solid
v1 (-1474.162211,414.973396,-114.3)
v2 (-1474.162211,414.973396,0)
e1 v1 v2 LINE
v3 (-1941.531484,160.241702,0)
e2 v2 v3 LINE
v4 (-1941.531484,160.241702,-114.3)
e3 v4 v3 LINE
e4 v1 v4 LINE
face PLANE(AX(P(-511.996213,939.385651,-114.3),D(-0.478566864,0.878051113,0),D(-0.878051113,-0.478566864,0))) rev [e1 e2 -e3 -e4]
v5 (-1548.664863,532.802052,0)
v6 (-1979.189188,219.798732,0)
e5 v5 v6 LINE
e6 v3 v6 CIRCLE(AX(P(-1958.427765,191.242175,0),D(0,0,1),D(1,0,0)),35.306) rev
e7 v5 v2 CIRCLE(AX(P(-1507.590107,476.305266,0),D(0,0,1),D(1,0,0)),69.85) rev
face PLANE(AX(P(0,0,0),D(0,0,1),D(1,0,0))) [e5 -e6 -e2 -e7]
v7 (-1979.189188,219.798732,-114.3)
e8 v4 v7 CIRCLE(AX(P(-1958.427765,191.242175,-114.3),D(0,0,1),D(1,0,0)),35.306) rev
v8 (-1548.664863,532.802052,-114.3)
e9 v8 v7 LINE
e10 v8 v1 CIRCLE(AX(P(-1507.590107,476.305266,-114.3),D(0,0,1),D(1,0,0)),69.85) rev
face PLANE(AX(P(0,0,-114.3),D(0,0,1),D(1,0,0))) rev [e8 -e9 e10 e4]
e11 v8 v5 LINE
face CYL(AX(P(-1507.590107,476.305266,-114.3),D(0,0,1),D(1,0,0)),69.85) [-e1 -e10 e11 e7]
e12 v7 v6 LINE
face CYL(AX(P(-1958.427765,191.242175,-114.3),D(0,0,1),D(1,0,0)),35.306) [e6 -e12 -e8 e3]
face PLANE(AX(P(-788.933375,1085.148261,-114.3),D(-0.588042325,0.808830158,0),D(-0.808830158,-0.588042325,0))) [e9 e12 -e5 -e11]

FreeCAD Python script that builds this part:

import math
import FreeCAD as App
import Part
import Sketcher
Q = App.Units.Quantity

doc = App.newDocument("Part")
params = doc.addObject("Spreadsheet::Sheet", "Params")
for row, (alias, value) in enumerate([
    ("sketch1_radius", "1.39 in"),
    ("sketch1_radius2", "2.75 in"),
    ("pad1_length", "4.5 in"),
], start=1):
    params.set(f"A{row}", alias)
    params.set(f"B{row}", "=" + value)
    params.setAlias(f"B{row}", alias)

body = doc.addObject("PartDesign::Body", "Body")

sketch1 = body.newObject("Sketcher::SketchObject", "Sketch")
sketch1.AttachmentSupport = (doc.getObject("XY_Plane"), [""])
sketch1.MapMode = "FlatFace"
sketch1.addGeometry([
    Part.LineSegment(App.Vector(-1549, 533, 0), App.Vector(-1979, 220, 0)),
    Part.ArcOfCircle(Part.Circle(App.Vector(-1958, 191, 0), App.Vector(0, 0, 1), 35), math.radians(126), math.radians(299)),
    Part.LineSegment(App.Vector(-1942, 160, 0), App.Vector(-1474, 415, 0)),
    Part.ArcOfCircle(Part.Circle(App.Vector(-1508, 476, 0), App.Vector(0, 0, 1), 70), math.radians(-61), math.radians(126)),
], False)
sketch1.addConstraint([
    Sketcher.Constraint("Tangent", 0, 2, 1, 1),
    Sketcher.Constraint("Tangent", 1, 2, 2, 1),
    Sketcher.Constraint("Tangent", 2, 2, 3, 1),
    Sketcher.Constraint("Tangent", 3, 2, 0, 1),
    Sketcher.Constraint("Radius", 1, Q("1.39 in")),
    Sketcher.Constraint("Radius", 3, Q("2.75 in")),
    Sketcher.Constraint("DistanceX", 1, 3, 3, 2, Q("409.762902 mm")),
    Sketcher.Constraint("DistanceX", 2, 2, -1, 1, Q("1474.162211 mm")),
    Sketcher.Constraint("DistanceX", 1, 3, 3, 3, Q("450.837658 mm")),
    Sketcher.Constraint("DistanceY", -1, 1, 1, 3, Q("191.242175 mm")),
])
sketch1.setExpression("Constraints[4]", "Params.sketch1_radius")
sketch1.setExpression("Constraints[5]", "Params.sketch1_radius2")
pad1 = body.newObject("PartDesign::Pad", "Pad")
pad1.Profile = sketch1
pad1.setExpression("Length", "Params.pad1_length")
pad1.Reversed = True

doc.recompute()
